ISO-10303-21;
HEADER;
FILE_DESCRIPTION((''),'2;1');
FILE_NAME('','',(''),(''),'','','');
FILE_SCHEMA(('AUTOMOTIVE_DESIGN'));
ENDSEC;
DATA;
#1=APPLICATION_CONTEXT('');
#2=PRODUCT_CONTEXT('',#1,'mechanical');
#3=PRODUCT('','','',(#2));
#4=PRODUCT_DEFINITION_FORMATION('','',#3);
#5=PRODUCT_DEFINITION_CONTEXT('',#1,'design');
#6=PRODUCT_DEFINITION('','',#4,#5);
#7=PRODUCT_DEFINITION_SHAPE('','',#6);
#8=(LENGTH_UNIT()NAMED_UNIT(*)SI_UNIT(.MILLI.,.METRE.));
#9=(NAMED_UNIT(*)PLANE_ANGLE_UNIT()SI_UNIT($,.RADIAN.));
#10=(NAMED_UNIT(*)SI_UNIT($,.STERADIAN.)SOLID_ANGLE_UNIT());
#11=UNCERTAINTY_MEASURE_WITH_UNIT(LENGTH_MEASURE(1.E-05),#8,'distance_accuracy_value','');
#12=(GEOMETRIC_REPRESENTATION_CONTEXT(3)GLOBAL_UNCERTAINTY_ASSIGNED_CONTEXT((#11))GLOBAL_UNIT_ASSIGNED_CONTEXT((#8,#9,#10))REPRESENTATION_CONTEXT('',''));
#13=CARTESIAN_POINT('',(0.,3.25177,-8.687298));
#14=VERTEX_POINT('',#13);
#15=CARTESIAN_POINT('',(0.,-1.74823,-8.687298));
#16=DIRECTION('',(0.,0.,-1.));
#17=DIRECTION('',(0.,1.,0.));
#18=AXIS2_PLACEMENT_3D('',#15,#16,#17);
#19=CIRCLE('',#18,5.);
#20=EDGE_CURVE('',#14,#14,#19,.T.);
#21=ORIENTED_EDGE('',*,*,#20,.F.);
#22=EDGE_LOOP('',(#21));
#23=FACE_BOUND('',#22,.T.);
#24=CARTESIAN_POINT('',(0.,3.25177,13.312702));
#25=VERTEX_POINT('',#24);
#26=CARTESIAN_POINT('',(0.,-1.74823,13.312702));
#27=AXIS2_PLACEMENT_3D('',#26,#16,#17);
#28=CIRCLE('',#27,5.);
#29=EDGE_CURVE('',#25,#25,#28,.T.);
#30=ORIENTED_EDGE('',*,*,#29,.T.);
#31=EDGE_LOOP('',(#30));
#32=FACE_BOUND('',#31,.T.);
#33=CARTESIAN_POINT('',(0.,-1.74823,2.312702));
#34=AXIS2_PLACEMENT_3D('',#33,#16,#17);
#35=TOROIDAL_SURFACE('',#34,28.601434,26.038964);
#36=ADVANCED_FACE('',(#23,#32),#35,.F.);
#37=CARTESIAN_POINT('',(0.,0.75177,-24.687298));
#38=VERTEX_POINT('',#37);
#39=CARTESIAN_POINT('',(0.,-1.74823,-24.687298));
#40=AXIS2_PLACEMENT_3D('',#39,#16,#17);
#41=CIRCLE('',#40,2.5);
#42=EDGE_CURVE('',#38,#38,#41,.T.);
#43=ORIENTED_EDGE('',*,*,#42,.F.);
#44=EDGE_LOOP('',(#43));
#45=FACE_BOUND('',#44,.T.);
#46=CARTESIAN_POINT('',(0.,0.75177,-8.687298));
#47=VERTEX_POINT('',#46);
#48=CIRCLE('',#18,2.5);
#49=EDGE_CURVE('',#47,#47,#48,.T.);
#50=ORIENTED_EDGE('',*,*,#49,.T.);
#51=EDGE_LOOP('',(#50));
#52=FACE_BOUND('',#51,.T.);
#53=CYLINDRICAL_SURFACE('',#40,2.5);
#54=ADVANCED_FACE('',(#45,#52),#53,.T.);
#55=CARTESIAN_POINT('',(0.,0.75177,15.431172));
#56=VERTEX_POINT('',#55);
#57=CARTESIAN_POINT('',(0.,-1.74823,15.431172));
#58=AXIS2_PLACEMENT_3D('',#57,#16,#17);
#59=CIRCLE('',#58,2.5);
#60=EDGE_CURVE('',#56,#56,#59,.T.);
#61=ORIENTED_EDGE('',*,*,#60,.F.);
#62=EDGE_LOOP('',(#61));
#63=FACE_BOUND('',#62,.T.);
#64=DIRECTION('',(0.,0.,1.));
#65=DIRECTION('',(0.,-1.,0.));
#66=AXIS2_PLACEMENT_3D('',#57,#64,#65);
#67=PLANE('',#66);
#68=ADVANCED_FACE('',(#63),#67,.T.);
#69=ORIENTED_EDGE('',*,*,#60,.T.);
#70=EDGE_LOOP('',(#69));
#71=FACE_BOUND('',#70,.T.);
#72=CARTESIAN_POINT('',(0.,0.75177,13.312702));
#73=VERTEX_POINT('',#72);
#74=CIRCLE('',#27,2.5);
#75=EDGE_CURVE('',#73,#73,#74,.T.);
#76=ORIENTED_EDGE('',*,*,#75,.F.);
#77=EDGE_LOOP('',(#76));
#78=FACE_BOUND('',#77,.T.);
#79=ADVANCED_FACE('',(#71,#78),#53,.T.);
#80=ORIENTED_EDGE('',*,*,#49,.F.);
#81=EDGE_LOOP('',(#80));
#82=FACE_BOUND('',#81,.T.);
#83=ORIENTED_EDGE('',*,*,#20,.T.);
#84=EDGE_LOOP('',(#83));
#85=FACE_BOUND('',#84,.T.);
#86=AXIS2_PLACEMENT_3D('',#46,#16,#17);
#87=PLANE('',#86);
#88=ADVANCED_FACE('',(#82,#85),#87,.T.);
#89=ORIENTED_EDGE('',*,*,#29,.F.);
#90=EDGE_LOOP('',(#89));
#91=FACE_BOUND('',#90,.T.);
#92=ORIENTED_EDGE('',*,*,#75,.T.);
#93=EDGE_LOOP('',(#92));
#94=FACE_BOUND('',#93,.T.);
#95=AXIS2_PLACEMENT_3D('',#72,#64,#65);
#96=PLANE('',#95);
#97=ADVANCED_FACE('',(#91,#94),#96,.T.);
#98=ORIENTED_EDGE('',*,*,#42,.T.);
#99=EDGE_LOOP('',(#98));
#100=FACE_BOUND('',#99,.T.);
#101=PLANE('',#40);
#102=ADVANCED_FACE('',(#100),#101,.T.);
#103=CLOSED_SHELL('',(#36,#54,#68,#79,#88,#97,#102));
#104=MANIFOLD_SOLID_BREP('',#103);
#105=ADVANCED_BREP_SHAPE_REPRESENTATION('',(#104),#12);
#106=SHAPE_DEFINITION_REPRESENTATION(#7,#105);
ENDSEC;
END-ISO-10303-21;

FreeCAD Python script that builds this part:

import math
import FreeCAD as App
import Part
import Sketcher

V = App.Vector
Q = App.Units.Quantity

doc = App.newDocument("Part")
params = doc.addObject("Spreadsheet::Sheet", "Params")
for row, (alias, value) in enumerate([
    ("sketch1_height", "16 mm"),
    ("sketch1_width", "2.5 mm"),
    ("revolution_angle", "360 deg"),
], start=1):
    params.set(f"A{row}", alias)
    params.set(f"B{row}", "=" + value)
    params.setAlias(f"B{row}", alias)

body = doc.addObject("PartDesign::Body", "Body")

# Sketch on YZ plane
sketch1 = body.newObject("Sketcher::SketchObject", "Sketch")
sketch1.AttachmentSupport = (doc.getObject("YZ_Plane"), [""])
sketch1.MapMode = "FlatFace"
sketch1.addGeometry([
    Part.LineSegment(V(-1.74823, 15.431172, 0), V(-1.74823, -24.687298, 0)),  # 0
    Part.LineSegment(V(-1.74823, -24.687298, 0), V(0.75177, -24.687298, 0)),  # 1
    Part.LineSegment(V(0.75177, -24.687298, 0), V(0.75177, -8.687298, 0)),  # 2
    Part.LineSegment(V(0.75177, -8.687298, 0), V(3.25177, -8.687298, 0)),  # 3
    Part.ArcOfCircle(Part.Circle(V(26.853204, 2.312702, 0), V(0, 0, 1), 26.038964), math.radians(155.011027), math.radians(204.988973)),  # 4
    Part.LineSegment(V(3.25177, 13.312702, 0), V(0.75177, 13.312702, 0)),  # 5
    Part.LineSegment(V(0.75177, 13.312702, 0), V(0.75177, 15.431172, 0)),  # 6
    Part.LineSegment(V(0.75177, 15.431172, 0), V(-1.74823, 15.431172, 0)),  # 7
], False)
sketch1.addGeometry(Part.LineSegment(V(-1.74823, -24.687298, 0), V(-1.74823, 15.431172, 0)), True)  # axis
sketch1.addConstraint([
    Sketcher.Constraint("Coincident", 0, 2, 1, 1),
    Sketcher.Constraint("Coincident", 1, 2, 2, 1),
    Sketcher.Constraint("Coincident", 2, 2, 3, 1),
    Sketcher.Constraint("Coincident", 3, 2, 4, 2),
    Sketcher.Constraint("Coincident", 4, 1, 5, 1),
    Sketcher.Constraint("Coincident", 5, 2, 6, 1),
    Sketcher.Constraint("Coincident", 6, 2, 7, 1),
    Sketcher.Constraint("Coincident", 7, 2, 0, 1),
    Sketcher.Constraint("Vertical", 0),
    Sketcher.Constraint("Horizontal", 1),
    Sketcher.Constraint("Vertical", 2),
    Sketcher.Constraint("Horizontal", 3),
    Sketcher.Constraint("Horizontal", 5),
    Sketcher.Constraint("Vertical", 6),
    Sketcher.Constraint("Horizontal", 7),
    Sketcher.Constraint("Vertical", 8),
    Sketcher.Constraint("Coincident", 8, 1, 0, 2),
    Sketcher.Constraint("Horizontal", 6, 2, 8, 2),
    Sketcher.Constraint("Vertical", 3, 2, 4, 1),
    Sketcher.Constraint("Vertical", 2, 2, 5, 2),
    Sketcher.Constraint("Equal", 1, 3),
    Sketcher.Constraint("DistanceY", 2, 1, 2, 2, Q("16 mm")),
    Sketcher.Constraint("DistanceX", 1, 1, 1, 2, Q("2.5 mm")),
    Sketcher.Constraint("DistanceY", 0, 2, 4, 3, Q("27 mm")),
    Sketcher.Constraint("Radius", 4, Q("26.038964 mm")),
    Sketcher.Constraint("DistanceY", 0, 2, 0, 1, Q("40.11847 mm")),
    Sketcher.Constraint("DistanceY", -1, 1, 4, 3, Q("2.312702 mm")),
    Sketcher.Constraint("DistanceX", 0, 2, -1, 1, Q("1.74823 mm")),
])
sketch1.setExpression("Constraints[21]", "Params.sketch1_height")
sketch1.setExpression("Constraints[22]", "Params.sketch1_width")
revolution = body.newObject("PartDesign::Revolution", "Revolution")
revolution.Profile = sketch1
revolution.ReferenceAxis = (sketch1, ["Axis0"])
revolution.setExpression("Angle", "Params.revolution_angle")

doc.recompute()
